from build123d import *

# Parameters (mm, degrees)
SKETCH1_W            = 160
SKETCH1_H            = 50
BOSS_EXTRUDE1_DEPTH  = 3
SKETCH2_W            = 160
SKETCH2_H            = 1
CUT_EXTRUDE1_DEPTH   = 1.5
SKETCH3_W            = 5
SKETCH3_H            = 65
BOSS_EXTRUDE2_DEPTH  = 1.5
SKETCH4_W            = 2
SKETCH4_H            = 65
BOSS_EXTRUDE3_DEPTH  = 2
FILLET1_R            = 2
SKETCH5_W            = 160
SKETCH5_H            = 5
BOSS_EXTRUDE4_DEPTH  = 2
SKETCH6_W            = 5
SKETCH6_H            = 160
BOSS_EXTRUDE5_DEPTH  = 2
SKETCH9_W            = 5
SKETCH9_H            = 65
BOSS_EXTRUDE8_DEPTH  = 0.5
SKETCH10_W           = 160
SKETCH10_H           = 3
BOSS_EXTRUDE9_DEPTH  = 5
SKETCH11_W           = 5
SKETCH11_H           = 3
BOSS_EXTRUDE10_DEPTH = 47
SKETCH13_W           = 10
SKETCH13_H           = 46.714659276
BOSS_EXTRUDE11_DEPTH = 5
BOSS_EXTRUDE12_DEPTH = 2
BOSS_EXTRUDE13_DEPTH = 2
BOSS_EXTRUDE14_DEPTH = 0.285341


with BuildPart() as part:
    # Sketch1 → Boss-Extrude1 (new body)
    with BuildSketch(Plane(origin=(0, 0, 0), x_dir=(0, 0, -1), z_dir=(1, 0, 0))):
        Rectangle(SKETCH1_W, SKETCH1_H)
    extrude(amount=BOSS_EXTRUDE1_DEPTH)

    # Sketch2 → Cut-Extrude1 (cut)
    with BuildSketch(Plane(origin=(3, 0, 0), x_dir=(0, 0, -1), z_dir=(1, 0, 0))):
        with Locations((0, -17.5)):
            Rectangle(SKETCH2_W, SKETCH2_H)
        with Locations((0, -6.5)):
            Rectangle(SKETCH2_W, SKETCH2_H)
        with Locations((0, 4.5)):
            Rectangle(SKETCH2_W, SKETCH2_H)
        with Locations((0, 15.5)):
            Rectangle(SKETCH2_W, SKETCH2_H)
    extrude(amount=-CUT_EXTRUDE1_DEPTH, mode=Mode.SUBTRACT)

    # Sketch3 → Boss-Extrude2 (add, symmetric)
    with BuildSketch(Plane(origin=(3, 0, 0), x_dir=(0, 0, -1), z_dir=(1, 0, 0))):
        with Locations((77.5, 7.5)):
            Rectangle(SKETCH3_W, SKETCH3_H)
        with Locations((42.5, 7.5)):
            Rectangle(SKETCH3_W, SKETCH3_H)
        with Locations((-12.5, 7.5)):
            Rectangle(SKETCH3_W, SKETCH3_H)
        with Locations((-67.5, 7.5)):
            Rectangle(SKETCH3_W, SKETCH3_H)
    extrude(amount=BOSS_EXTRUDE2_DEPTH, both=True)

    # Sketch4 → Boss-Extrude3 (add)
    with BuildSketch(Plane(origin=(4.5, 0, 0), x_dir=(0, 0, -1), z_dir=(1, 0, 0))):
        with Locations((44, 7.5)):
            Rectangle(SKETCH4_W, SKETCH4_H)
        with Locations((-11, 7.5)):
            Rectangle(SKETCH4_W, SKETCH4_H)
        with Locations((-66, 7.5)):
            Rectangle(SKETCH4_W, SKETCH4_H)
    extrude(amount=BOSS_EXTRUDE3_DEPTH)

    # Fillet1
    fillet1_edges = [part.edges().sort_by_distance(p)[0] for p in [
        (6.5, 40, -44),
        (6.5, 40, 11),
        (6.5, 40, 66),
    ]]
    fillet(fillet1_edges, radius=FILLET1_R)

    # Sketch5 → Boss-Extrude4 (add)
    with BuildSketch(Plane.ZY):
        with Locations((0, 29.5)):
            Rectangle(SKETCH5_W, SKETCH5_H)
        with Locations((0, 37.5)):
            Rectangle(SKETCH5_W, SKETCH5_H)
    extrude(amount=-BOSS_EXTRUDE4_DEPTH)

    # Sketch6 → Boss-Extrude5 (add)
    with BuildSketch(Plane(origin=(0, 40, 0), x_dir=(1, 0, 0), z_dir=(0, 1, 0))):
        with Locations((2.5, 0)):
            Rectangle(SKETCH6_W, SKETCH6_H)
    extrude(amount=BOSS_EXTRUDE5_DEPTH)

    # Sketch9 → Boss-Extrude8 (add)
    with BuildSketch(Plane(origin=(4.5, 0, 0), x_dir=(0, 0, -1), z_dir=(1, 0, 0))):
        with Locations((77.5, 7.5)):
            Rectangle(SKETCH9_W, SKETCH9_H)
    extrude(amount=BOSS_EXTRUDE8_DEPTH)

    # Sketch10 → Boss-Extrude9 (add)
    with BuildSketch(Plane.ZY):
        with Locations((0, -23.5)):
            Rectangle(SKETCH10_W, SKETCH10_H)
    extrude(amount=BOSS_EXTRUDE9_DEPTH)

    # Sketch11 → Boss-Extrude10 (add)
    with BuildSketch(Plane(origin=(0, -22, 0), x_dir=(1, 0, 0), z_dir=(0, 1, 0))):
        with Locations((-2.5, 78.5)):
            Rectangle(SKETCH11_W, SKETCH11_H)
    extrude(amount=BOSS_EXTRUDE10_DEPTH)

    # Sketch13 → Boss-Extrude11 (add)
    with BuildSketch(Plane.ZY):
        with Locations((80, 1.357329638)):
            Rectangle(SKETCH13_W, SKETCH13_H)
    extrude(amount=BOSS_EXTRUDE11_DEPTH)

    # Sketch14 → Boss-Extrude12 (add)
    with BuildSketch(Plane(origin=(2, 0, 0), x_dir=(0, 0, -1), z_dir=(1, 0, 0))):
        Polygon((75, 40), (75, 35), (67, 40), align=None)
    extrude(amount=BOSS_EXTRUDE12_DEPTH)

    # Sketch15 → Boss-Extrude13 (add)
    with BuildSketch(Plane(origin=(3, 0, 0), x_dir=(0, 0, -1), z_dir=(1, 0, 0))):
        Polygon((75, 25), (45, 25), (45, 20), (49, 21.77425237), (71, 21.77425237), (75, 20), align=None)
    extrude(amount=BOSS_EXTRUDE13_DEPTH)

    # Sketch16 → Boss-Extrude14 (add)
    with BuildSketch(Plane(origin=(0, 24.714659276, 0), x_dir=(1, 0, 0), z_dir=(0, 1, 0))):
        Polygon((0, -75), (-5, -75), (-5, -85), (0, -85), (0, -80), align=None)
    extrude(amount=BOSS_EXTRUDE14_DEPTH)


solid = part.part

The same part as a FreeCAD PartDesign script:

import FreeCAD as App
import Part
import Sketcher
from FreeCAD import Vector
Q = App.Units.Quantity


def edges_at(feature, points):
    """Names of the edges that pass closest to the given points."""
    edges = feature.Shape.Edges
    near = lambda p: min(range(len(edges)), key=lambda i: edges[i].distToShape(Part.Vertex(*p))[0])
    return sorted({f"Edge{near(p) + 1}" for p in points})

doc = App.newDocument("Part")
body = doc.addObject("PartDesign::Body", "Body")

# Sketch on YZ plane
sketch1 = doc.addObject("Sketcher::SketchObject", "Sketch")
body.addObject(sketch1)
sketch1.AttachmentSupport = (doc.YZ_Plane, [""])
sketch1.MapMode = "FlatFace"
sketch1.addGeometry(Part.LineSegment(Vector(25, 80, 0), Vector(-25, 80, 0)), False)
sketch1.addGeometry(Part.LineSegment(Vector(-25, 80, 0), Vector(-25, -80, 0)), False)
sketch1.addGeometry(Part.LineSegment(Vector(-25, -80, 0), Vector(25, -80, 0)), False)
sketch1.addGeometry(Part.LineSegment(Vector(25, -80, 0), Vector(25, 80, 0)), False)
sketch1.addConstraint(Sketcher.Constraint("Coincident", 0, 2, 1, 1))
sketch1.addConstraint(Sketcher.Constraint("Coincident", 1, 2, 2, 1))
sketch1.addConstraint(Sketcher.Constraint("Coincident", 2, 2, 3, 1))
sketch1.addConstraint(Sketcher.Constraint("Coincident", 3, 2, 0, 1))
sketch1.addConstraint(Sketcher.Constraint("Horizontal", 0))
sketch1.addConstraint(Sketcher.Constraint("Vertical", 1))
sketch1.addConstraint(Sketcher.Constraint("Horizontal", 2))
sketch1.addConstraint(Sketcher.Constraint("Vertical", 3))
sketch1.addConstraint(Sketcher.Constraint("Symmetric", 0, 2, 2, 2, -1, 1))
sketch1.addConstraint(Sketcher.Constraint("DistanceX", 0, 2, 0, 1, Q("50 mm")))
sketch1.addConstraint(Sketcher.Constraint("DistanceY", 1, 2, 1, 1, Q("160 mm")))
pad1 = doc.addObject("PartDesign::Pad", "Pad")
body.addObject(pad1)
pad1.Profile = sketch1
pad1.Length = 3

# Sketch on YZ plane
sketch2 = doc.addObject("Sketcher::SketchObject", "Sketch001")
body.addObject(sketch2)
sketch2.AttachmentSupport = (doc.YZ_Plane, [""])
sketch2.MapMode = "FlatFace"
sketch2.AttachmentOffset = App.Placement(Vector(0, 0, 3), App.Rotation())
sketch2.addGeometry(Part.LineSegment(Vector(-17, 80, 0), Vector(-18, 80, 0)), False)
sketch2.addGeometry(Part.LineSegment(Vector(-18, 80, 0), Vector(-18, -80, 0)), False)
sketch2.addGeometry(Part.LineSegment(Vector(-18, -80, 0), Vector(-17, -80, 0)), False)
sketch2.addGeometry(Part.LineSegment(Vector(-17, -80, 0), Vector(-17, 80, 0)), False)
sketch2.addGeometry(Part.LineSegment(Vector(-6, 80, 0), Vector(-7, 80, 0)), False)
sketch2.addGeometry(Part.LineSegment(Vector(-7, 80, 0), Vector(-7, -80, 0)), False)
sketch2.addGeometry(Part.LineSegment(Vector(-7, -80, 0), Vector(-6, -80, 0)), False)
sketch2.addGeometry(Part.LineSegment(Vector(-6, -80, 0), Vector(-6, 80, 0)), False)
sketch2.addGeometry(Part.LineSegment(Vector(5, 80, 0), Vector(4, 80, 0)), False)
sketch2.addGeometry(Part.LineSegment(Vector(4, 80, 0), Vector(4, -80, 0)), False)
sketch2.addGeometry(Part.LineSegment(Vector(4, -80, 0), Vector(5, -80, 0)), False)
sketch2.addGeometry(Part.LineSegment(Vector(5, -80, 0), Vector(5, 80, 0)), False)
sketch2.addGeometry(Part.LineSegment(Vector(16, 80, 0), Vector(15, 80, 0)), False)
sketch2.addGeometry(Part.LineSegment(Vector(15, 80, 0), Vector(15, -80, 0)), False)
sketch2.addGeometry(Part.LineSegment(Vector(15, -80, 0), Vector(16, -80, 0)), False)
sketch2.addGeometry(Part.LineSegment(Vector(16, -80, 0), Vector(16, 80, 0)), False)
sketch2.addConstraint(Sketcher.Constraint("Coincident", 0, 2, 1, 1))
sketch2.addConstraint(Sketcher.Constraint("Coincident", 1, 2, 2, 1))
sketch2.addConstraint(Sketcher.Constraint("Coincident", 2, 2, 3, 1))
sketch2.addConstraint(Sketcher.Constraint("Coincident", 3, 2, 0, 1))
sketch2.addConstraint(Sketcher.Constraint("Coincident", 4, 2, 5, 1))
sketch2.addConstraint(Sketcher.Constraint("Coincident", 5, 2, 6, 1))
sketch2.addConstraint(Sketcher.Constraint("Coincident", 6, 2, 7, 1))
sketch2.addConstraint(Sketcher.Constraint("Coincident", 7, 2, 4, 1))
sketch2.addConstraint(Sketcher.Constraint("Coincident", 8, 2, 9, 1))
sketch2.addConstraint(Sketcher.Constraint("Coincident", 9, 2, 10, 1))
sketch2.addConstraint(Sketcher.Constraint("Coincident", 10, 2, 11, 1))
sketch2.addConstraint(Sketcher.Constraint("Coincident", 11, 2, 8, 1))
sketch2.addConstraint(Sketcher.Constraint("Coincident", 12, 2, 13, 1))
sketch2.addConstraint(Sketcher.Constraint("Coincident", 13, 2, 14, 1))
sketch2.addConstraint(Sketcher.Constraint("Coincident", 14, 2, 15, 1))
sketch2.addConstraint(Sketcher.Constraint("Coincident", 15, 2, 12, 1))
sketch2.addConstraint(Sketcher.Constraint("Horizontal", 0))
sketch2.addConstraint(Sketcher.Constraint("Vertical", 1))
sketch2.addConstraint(Sketcher.Constraint("Horizontal", 2))
sketch2.addConstraint(Sketcher.Constraint("Vertical", 3))
sketch2.addConstraint(Sketcher.Constraint("Horizontal", 4))
sketch2.addConstraint(Sketcher.Constraint("Vertical", 5))
sketch2.addConstraint(Sketcher.Constraint("Horizontal", 6))
sketch2.addConstraint(Sketcher.Constraint("Vertical", 7))
sketch2.addConstraint(Sketcher.Constraint("Horizontal", 8))
sketch2.addConstraint(Sketcher.Constraint("Vertical", 9))
sketch2.addConstraint(Sketcher.Constraint("Horizontal", 10))
sketch2.addConstraint(Sketcher.Constraint("Vertical", 11))
sketch2.addConstraint(Sketcher.Constraint("Horizontal", 12))
sketch2.addConstraint(Sketcher.Constraint("Vertical", 13))
sketch2.addConstraint(Sketcher.Constraint("Horizontal", 14))
sketch2.addConstraint(Sketcher.Constraint("Vertical", 15))
sketch2.addConstraint(Sketcher.Constraint("Horizontal", 3, 2, 4, 2))
sketch2.addConstraint(Sketcher.Constraint("Horizontal", 2, 2, 5, 2))
sketch2.addConstraint(Sketcher.Constraint("Horizontal", 7, 2, 8, 2))
sketch2.addConstraint(Sketcher.Constraint("Horizontal", 6, 2, 9, 2))
sketch2.addConstraint(Sketcher.Constraint("Horizontal", 11, 2, 12, 2))
sketch2.addConstraint(Sketcher.Constraint("Horizontal", 10, 2, 13, 2))
sketch2.addConstraint(Sketcher.Constraint("Equal", 2, 4))
sketch2.addConstraint(Sketcher.Constraint("Equal", 6, 8))
sketch2.addConstraint(Sketcher.Constraint("Equal", 10, 12))
sketch2.addConstraint(Sketcher.Constraint("DistanceX", 0, 2, 0, 1, Q("1 mm")))
sketch2.addConstraint(Sketcher.Constraint("DistanceY", 1, 2, 1, 1, Q("160 mm")))
sketch2.addConstraint(Sketcher.Constraint("DistanceX", 0, 2, -1, 1, Q("18 mm")))
sketch2.addConstraint(Sketcher.Constraint("DistanceY", -1, 1, 0, 2, Q("80 mm")))
sketch2.addConstraint(Sketcher.Constraint("DistanceX", 4, 2, -1, 1, Q("7 mm")))
sketch2.addConstraint(Sketcher.Constraint("DistanceX", -1, 1, 8, 2, Q("4 mm")))
sketch2.addConstraint(Sketcher.Constraint("DistanceX", -1, 1, 12, 2, Q("15 mm")))
pocket1 = doc.addObject("PartDesign::Pocket", "Pocket")
body.addObject(pocket1)
pocket1.Profile = sketch2
pocket1.Length = 1.5

# Sketch on YZ plane
sketch3 = doc.addObject("Sketcher::SketchObject", "Sketch002")
body.addObject(sketch3)
sketch3.AttachmentSupport = (doc.YZ_Plane, [""])
sketch3.MapMode = "FlatFace"
sketch3.AttachmentOffset = App.Placement(Vector(0, 0, 3), App.Rotation())
sketch3.addGeometry(Part.LineSegment(Vector(40, -75, 0), Vector(-25, -75, 0)), False)
sketch3.addGeometry(Part.LineSegment(Vector(-25, -75, 0), Vector(-25, -80, 0)), False)
sketch3.addGeometry(Part.LineSegment(Vector(-25, -80, 0), Vector(40, -80, 0)), False)
sketch3.addGeometry(Part.LineSegment(Vector(40, -80, 0), Vector(40, -75, 0)), False)
sketch3.addGeometry(Part.LineSegment(Vector(40, -40, 0), Vector(-25, -40, 0)), False)
sketch3.addGeometry(Part.LineSegment(Vector(-25, -40, 0), Vector(-25, -45, 0)), False)
sketch3.addGeometry(Part.LineSegment(Vector(-25, -45, 0), Vector(40, -45, 0)), False)
sketch3.addGeometry(Part.LineSegment(Vector(40, -45, 0), Vector(40, -40, 0)), False)
sketch3.addGeometry(Part.LineSegment(Vector(40, 15, 0), Vector(-25, 15, 0)), False)
sketch3.addGeometry(Part.LineSegment(Vector(-25, 15, 0), Vector(-25, 10, 0)), False)
sketch3.addGeometry(Part.LineSegment(Vector(-25, 10, 0), Vector(40, 10, 0)), False)
sketch3.addGeometry(Part.LineSegment(Vector(40, 10, 0), Vector(40, 15, 0)), False)
sketch3.addGeometry(Part.LineSegment(Vector(40, 70, 0), Vector(-25, 70, 0)), False)
sketch3.addGeometry(Part.LineSegment(Vector(-25, 70, 0), Vector(-25, 65, 0)), False)
sketch3.addGeometry(Part.LineSegment(Vector(-25, 65, 0), Vector(40, 65, 0)), False)
sketch3.addGeometry(Part.LineSegment(Vector(40, 65, 0), Vector(40, 70, 0)), False)
sketch3.addConstraint(Sketcher.Constraint("Coincident", 0, 2, 1, 1))
sketch3.addConstraint(Sketcher.Constraint("Coincident", 1, 2, 2, 1))
sketch3.addConstraint(Sketcher.Constraint("Coincident", 2, 2, 3, 1))
sketch3.addConstraint(Sketcher.Constraint("Coincident", 3, 2, 0, 1))
sketch3.addConstraint(Sketcher.Constraint("Coincident", 4, 2, 5, 1))
sketch3.addConstraint(Sketcher.Constraint("Coincident", 5, 2, 6, 1))
sketch3.addConstraint(Sketcher.Constraint("Coincident", 6, 2, 7, 1))
sketch3.addConstraint(Sketcher.Constraint("Coincident", 7, 2, 4, 1))
sketch3.addConstraint(Sketcher.Constraint("Coincident", 8, 2, 9, 1))
sketch3.addConstraint(Sketcher.Constraint("Coincident", 9, 2, 10, 1))
sketch3.addConstraint(Sketcher.Constraint("Coincident", 10, 2, 11, 1))
sketch3.addConstraint(Sketcher.Constraint("Coincident", 11, 2, 8, 1))
sketch3.addConstraint(Sketcher.Constraint("Coincident", 12, 2, 13, 1))
sketch3.addConstraint(Sketcher.Constraint("Coincident", 13, 2, 14, 1))
sketch3.addConstraint(Sketcher.Constraint("Coincident", 14, 2, 15, 1))
sketch3.addConstraint(Sketcher.Constraint("Coincident", 15, 2, 12, 1))
sketch3.addConstraint(Sketcher.Constraint("Horizontal", 0))
sketch3.addConstraint(Sketcher.Constraint("Vertical", 1))
sketch3.addConstraint(Sketcher.Constraint("Horizontal", 2))
sketch3.addConstraint(Sketcher.Constraint("Vertical", 3))
sketch3.addConstraint(Sketcher.Constraint("Horizontal", 4))
sketch3.addConstraint(Sketcher.Constraint("Vertical", 5))
sketch3.addConstraint(Sketcher.Constraint("Horizontal", 6))
sketch3.addConstraint(Sketcher.Constraint("Vertical", 7))
sketch3.addConstraint(Sketcher.Constraint("Horizontal", 8))
sketch3.addConstraint(Sketcher.Constraint("Vertical", 9))
sketch3.addConstraint(Sketcher.Constraint("Horizontal", 10))
sketch3.addConstraint(Sketcher.Constraint("Vertical", 11))
sketch3.addConstraint(Sketcher.Constraint("Horizontal", 12))
sketch3.addConstraint(Sketcher.Constraint("Vertical", 13))
sketch3.addConstraint(Sketcher.Constraint("Horizontal", 14))
sketch3.addConstraint(Sketcher.Constraint("Vertical", 15))
sketch3.addConstraint(Sketcher.Constraint("Vertical", 1, 2, 4, 2))
sketch3.addConstraint(Sketcher.Constraint("Vertical", 3, 2, 6, 2))
sketch3.addConstraint(Sketcher.Constraint("Vertical", 5, 2, 8, 2))
sketch3.addConstraint(Sketcher.Constraint("Vertical", 7, 2, 10, 2))
sketch3.addConstraint(Sketcher.Constraint("Vertical", 9, 2, 12, 2))
sketch3.addConstraint(Sketcher.Constraint("Vertical", 11, 2, 14, 2))
sketch3.addConstraint(Sketcher.Constraint("Equal", 3, 5))
sketch3.addConstraint(Sketcher.Constraint("Equal", 7, 9))
sketch3.addConstraint(Sketcher.Constraint("Equal", 11, 13))
sketch3.addConstraint(Sketcher.Constraint("DistanceX", 0, 2, 0, 1, Q("65 mm")))
sketch3.addConstraint(Sketcher.Constraint("DistanceY", 1, 2, 1, 1, Q("5 mm")))
sketch3.addConstraint(Sketcher.Constraint("DistanceX", 0, 2, -1, 1, Q("25 mm")))
sketch3.addConstraint(Sketcher.Constraint("DistanceY", 0, 2, -1, 1, Q("75 mm")))
sketch3.addConstraint(Sketcher.Constraint("DistanceY", 4, 2, -1, 1, Q("40 mm")))
sketch3.addConstraint(Sketcher.Constraint("DistanceY", -1, 1, 8, 2, Q("15 mm")))
sketch3.addConstraint(Sketcher.Constraint("DistanceY", -1, 1, 12, 2, Q("70 mm")))
pad2 = doc.addObject("PartDesign::Pad", "Pad001")
body.addObject(pad2)
pad2.Profile = sketch3
pad2.Length = 3
pad2.Midplane = True

# Sketch on YZ plane
sketch4 = doc.addObject("Sketcher::SketchObject", "Sketch003")
body.addObject(sketch4)
sketch4.AttachmentSupport = (doc.YZ_Plane, [""])
sketch4.MapMode = "FlatFace"
sketch4.AttachmentOffset = App.Placement(Vector(0, 0, 4.5), App.Rotation())
sketch4.addGeometry(Part.LineSegment(Vector(40, -43, 0), Vector(-25, -43, 0)), False)
sketch4.addGeometry(Part.LineSegment(Vector(-25, -43, 0), Vector(-25, -45, 0)), False)
sketch4.addGeometry(Part.LineSegment(Vector(-25, -45, 0), Vector(40, -45, 0)), False)
sketch4.addGeometry(Part.LineSegment(Vector(40, -45, 0), Vector(40, -43, 0)), False)
sketch4.addGeometry(Part.LineSegment(Vector(40, 12, 0), Vector(-25, 12, 0)), False)
sketch4.addGeometry(Part.LineSegment(Vector(-25, 12, 0), Vector(-25, 10, 0)), False)
sketch4.addGeometry(Part.LineSegment(Vector(-25, 10, 0), Vector(40, 10, 0)), False)
sketch4.addGeometry(Part.LineSegment(Vector(40, 10, 0), Vector(40, 12, 0)), False)
sketch4.addGeometry(Part.LineSegment(Vector(40, 67, 0), Vector(-25, 67, 0)), False)
sketch4.addGeometry(Part.LineSegment(Vector(-25, 67, 0), Vector(-25, 65, 0)), False)
sketch4.addGeometry(Part.LineSegment(Vector(-25, 65, 0), Vector(40, 65, 0)), False)
sketch4.addGeometry(Part.LineSegment(Vector(40, 65, 0), Vector(40, 67, 0)), False)
sketch4.addConstraint(Sketcher.Constraint("Coincident", 0, 2, 1, 1))
sketch4.addConstraint(Sketcher.Constraint("Coincident", 1, 2, 2, 1))
sketch4.addConstraint(Sketcher.Constraint("Coincident", 2, 2, 3, 1))
sketch4.addConstraint(Sketcher.Constraint("Coincident", 3, 2, 0, 1))
sketch4.addConstraint(Sketcher.Constraint("Coincident", 4, 2, 5, 1))
sketch4.addConstraint(Sketcher.Constraint("Coincident", 5, 2, 6, 1))
sketch4.addConstraint(Sketcher.Constraint("Coincident", 6, 2, 7, 1))
sketch4.addConstraint(Sketcher.Constraint("Coincident", 7, 2, 4, 1))
sketch4.addConstraint(Sketcher.Constraint("Coincident", 8, 2, 9, 1))
sketch4.addConstraint(Sketcher.Constraint("Coincident", 9, 2, 10, 1))
sketch4.addConstraint(Sketcher.Constraint("Coincident", 10, 2, 11, 1))
sketch4.addConstraint(Sketcher.Constraint("Coincident", 11, 2, 8, 1))
sketch4.addConstraint(Sketcher.Constraint("Horizontal", 0))
sketch4.addConstraint(Sketcher.Constraint("Vertical", 1))
sketch4.addConstraint(Sketcher.Constraint("Horizontal", 2))
sketch4.addConstraint(Sketcher.Constraint("Vertical", 3))
sketch4.addConstraint(Sketcher.Constraint("Horizontal", 4))
sketch4.addConstraint(Sketcher.Constraint("Vertical", 5))
sketch4.addConstraint(Sketcher.Constraint("Horizontal", 6))
sketch4.addConstraint(Sketcher.Constraint("Vertical", 7))
sketch4.addConstraint(Sketcher.Constraint("Horizontal", 8))
sketch4.addConstraint(Sketcher.Constraint("Vertical", 9))
sketch4.addConstraint(Sketcher.Constraint("Horizontal", 10))
sketch4.addConstraint(Sketcher.Constraint("Vertical", 11))
sketch4.addConstraint(Sketcher.Constraint("Vertical", 1, 2, 4, 2))
sketch4.addConstraint(Sketcher.Constraint("Vertical", 3, 2, 6, 2))
sketch4.addConstraint(Sketcher.Constraint("Vertical", 5, 2, 8, 2))
sketch4.addConstraint(Sketcher.Constraint("Vertical", 7, 2, 10, 2))
sketch4.addConstraint(Sketcher.Constraint("Equal", 3, 5))
sketch4.addConstraint(Sketcher.Constraint("Equal", 7, 9))
sketch4.addConstraint(Sketcher.Constraint("DistanceX", 0, 2, 0, 1, Q("65 mm")))
sketch4.addConstraint(Sketcher.Constraint("DistanceY", 1, 2, 1, 1, Q("2 mm")))
sketch4.addConstraint(Sketcher.Constraint("DistanceX", 0, 2, -1, 1, Q("25 mm")))
sketch4.addConstraint(Sketcher.Constraint("DistanceY", 0, 2, -1, 1, Q("43 mm")))
sketch4.addConstraint(Sketcher.Constraint("DistanceY", -1, 1, 4, 2, Q("12 mm")))
sketch4.addConstraint(Sketcher.Constraint("DistanceY", -1, 1, 8, 2, Q("67 mm")))
pad3 = doc.addObject("PartDesign::Pad", "Pad002")
body.addObject(pad3)
pad3.Profile = sketch4
pad3.Length = 2
doc.recompute()

fillet = doc.addObject("PartDesign::Fillet", "Fillet")
body.addObject(fillet)
fillet.Base = (pad3, edges_at(pad3, [(6.5, 40, -44), (6.5, 40, 11), (6.5, 40, 66)]))
fillet.Radius = 2

# Sketch on YZ plane
sketch5 = doc.addObject("Sketcher::SketchObject", "Sketch004")
body.addObject(sketch5)
sketch5.AttachmentSupport = (doc.YZ_Plane, [""])
sketch5.MapMode = "FlatFace"
sketch5.addGeometry(Part.LineSegment(Vector(32, -80, 0), Vector(27, -80, 0)), False)
sketch5.addGeometry(Part.LineSegment(Vector(27, -80, 0), Vector(27, 80, 0)), False)
sketch5.addGeometry(Part.LineSegment(Vector(27, 80, 0), Vector(32, 80, 0)), False)
sketch5.addGeometry(Part.LineSegment(Vector(32, 80, 0), Vector(32, -80, 0)), False)
sketch5.addGeometry(Part.LineSegment(Vector(40, -80, 0), Vector(35, -80, 0)), False)
sketch5.addGeometry(Part.LineSegment(Vector(35, -80, 0), Vector(35, 80, 0)), False)
sketch5.addGeometry(Part.LineSegment(Vector(35, 80, 0), Vector(40, 80, 0)), False)
sketch5.addGeometry(Part.LineSegment(Vector(40, 80, 0), Vector(40, -80, 0)), False)
sketch5.addConstraint(Sketcher.Constraint("Coincident", 0, 2, 1, 1))
sketch5.addConstraint(Sketcher.Constraint("Coincident", 1, 2, 2, 1))
sketch5.addConstraint(Sketcher.Constraint("Coincident", 2, 2, 3, 1))
sketch5.addConstraint(Sketcher.Constraint("Coincident", 3, 2, 0, 1))
sketch5.addConstraint(Sketcher.Constraint("Coincident", 4, 2, 5, 1))
sketch5.addConstraint(Sketcher.Constraint("Coincident", 5, 2, 6, 1))
sketch5.addConstraint(Sketcher.Constraint("Coincident", 6, 2, 7, 1))
sketch5.addConstraint(Sketcher.Constraint("Coincident", 7, 2, 4, 1))
sketch5.addConstraint(Sketcher.Constraint("Horizontal", 0))
sketch5.addConstraint(Sketcher.Constraint("Vertical", 1))
sketch5.addConstraint(Sketcher.Constraint("Horizontal", 2))
sketch5.addConstraint(Sketcher.Constraint("Vertical", 3))
sketch5.addConstraint(Sketcher.Constraint("Horizontal", 4))
sketch5.addConstraint(Sketcher.Constraint("Vertical", 5))
sketch5.addConstraint(Sketcher.Constraint("Horizontal", 6))
sketch5.addConstraint(Sketcher.Constraint("Vertical", 7))
sketch5.addConstraint(Sketcher.Constraint("Horizontal", 3, 2, 4, 2))
sketch5.addConstraint(Sketcher.Constraint("Horizontal", 2, 2, 5, 2))
sketch5.addConstraint(Sketcher.Constraint("Equal", 2, 4))
sketch5.addConstraint(Sketcher.Constraint("DistanceX", 0, 2, 0, 1, Q("5 mm")))
sketch5.addConstraint(Sketcher.Constraint("DistanceY", 1, 1, 1, 2, Q("160 mm")))
sketch5.addConstraint(Sketcher.Constraint("DistanceX", -1, 1, 0, 2, Q("27 mm")))
sketch5.addConstraint(Sketcher.Constraint("DistanceY", 0, 2, -1, 1, Q("80 mm")))
sketch5.addConstraint(Sketcher.Constraint("DistanceX", -1, 1, 4, 2, Q("35 mm")))
pad4 = doc.addObject("PartDesign::Pad", "Pad003")
body.addObject(pad4)
pad4.Profile = sketch5
pad4.Length = 2

# Sketch on XZ plane
sketch6 = doc.addObject("Sketcher::SketchObject", "Sketch005")
body.addObject(sketch6)
sketch6.AttachmentSupport = (doc.XZ_Plane, [""])
sketch6.MapMode = "FlatFace"
sketch6.AttachmentOffset = App.Placement(Vector(0, 0, -40), App.Rotation())
sketch6.addGeometry(Part.LineSegment(Vector(0, -80, 0), Vector(0, 80, 0)), False)
sketch6.addGeometry(Part.LineSegment(Vector(0, 80, 0), Vector(5, 80, 0)), False)
sketch6.addGeometry(Part.LineSegment(Vector(5, 80, 0), Vector(5, -80, 0)), False)
sketch6.addGeometry(Part.LineSegment(Vector(5, -80, 0), Vector(0, -80, 0)), False)
sketch6.addConstraint(Sketcher.Constraint("Coincident", 0, 2, 1, 1))
sketch6.addConstraint(Sketcher.Constraint("Coincident", 1, 2, 2, 1))
sketch6.addConstraint(Sketcher.Constraint("Coincident", 2, 2, 3, 1))
sketch6.addConstraint(Sketcher.Constraint("Coincident", 3, 2, 0, 1))
sketch6.addConstraint(Sketcher.Constraint("Vertical", 0))
sketch6.addConstraint(Sketcher.Constraint("Horizontal", 1))
sketch6.addConstraint(Sketcher.Constraint("Vertical", 2))
sketch6.addConstraint(Sketcher.Constraint("Horizontal", 3))
sketch6.addConstraint(Sketcher.Constraint("Symmetric", 0, 2, 3, 2, -1, 1))
sketch6.addConstraint(Sketcher.Constraint("DistanceX", 1, 1, 1, 2, Q("5 mm")))
sketch6.addConstraint(Sketcher.Constraint("DistanceY", 0, 1, 0, 2, Q("160 mm")))
pad5 = doc.addObject("PartDesign::Pad", "Pad004")
body.addObject(pad5)
pad5.Profile = sketch6
pad5.Length = 2
pad5.Reversed = True

# Sketch on YZ plane
sketch7 = doc.addObject("Sketcher::SketchObject", "Sketch006")
body.addObject(sketch7)
sketch7.AttachmentSupport = (doc.YZ_Plane, [""])
sketch7.MapMode = "FlatFace"
sketch7.AttachmentOffset = App.Placement(Vector(0, 0, 4.5), App.Rotation())
sketch7.addGeometry(Part.LineSegment(Vector(40, -75, 0), Vector(-25, -75, 0)), False)
sketch7.addGeometry(Part.LineSegment(Vector(-25, -75, 0), Vector(-25, -80, 0)), False)
sketch7.addGeometry(Part.LineSegment(Vector(-25, -80, 0), Vector(40, -80, 0)), False)
sketch7.addGeometry(Part.LineSegment(Vector(40, -80, 0), Vector(40, -75, 0)), False)
sketch7.addConstraint(Sketcher.Constraint("Coincident", 0, 2, 1, 1))
sketch7.addConstraint(Sketcher.Constraint("Coincident", 1, 2, 2, 1))
sketch7.addConstraint(Sketcher.Constraint("Coincident", 2, 2, 3, 1))
sketch7.addConstraint(Sketcher.Constraint("Coincident", 3, 2, 0, 1))
sketch7.addConstraint(Sketcher.Constraint("Horizontal", 0))
sketch7.addConstraint(Sketcher.Constraint("Vertical", 1))
sketch7.addConstraint(Sketcher.Constraint("Horizontal", 2))
sketch7.addConstraint(Sketcher.Constraint("Vertical", 3))
sketch7.addConstraint(Sketcher.Constraint("DistanceX", 0, 2, 0, 1, Q("65 mm")))
sketch7.addConstraint(Sketcher.Constraint("DistanceY", 1, 2, 1, 1, Q("5 mm")))
sketch7.addConstraint(Sketcher.Constraint("DistanceX", 0, 2, -1, 1, Q("25 mm")))
sketch7.addConstraint(Sketcher.Constraint("DistanceY", 0, 2, -1, 1, Q("75 mm")))
pad6 = doc.addObject("PartDesign::Pad", "Pad005")
body.addObject(pad6)
pad6.Profile = sketch7
pad6.Length = 0.5

# Sketch on YZ plane
sketch8 = doc.addObject("Sketcher::SketchObject", "Sketch007")
body.addObject(sketch8)
sketch8.AttachmentSupport = (doc.YZ_Plane, [""])
sketch8.MapMode = "FlatFace"
sketch8.addGeometry(Part.LineSegment(Vector(-22, -80, 0), Vector(-25, -80, 0)), False)
sketch8.addGeometry(Part.LineSegment(Vector(-25, -80, 0), Vector(-25, 80, 0)), False)
sketch8.addGeometry(Part.LineSegment(Vector(-25, 80, 0), Vector(-22, 80, 0)), False)
sketch8.addGeometry(Part.LineSegment(Vector(-22, 80, 0), Vector(-22, -80, 0)), False)
sketch8.addConstraint(Sketcher.Constraint("Coincident", 0, 2, 1, 1))
sketch8.addConstraint(Sketcher.Constraint("Coincident", 1, 2, 2, 1))
sketch8.addConstraint(Sketcher.Constraint("Coincident", 2, 2, 3, 1))
sketch8.addConstraint(Sketcher.Constraint("Coincident", 3, 2, 0, 1))
sketch8.addConstraint(Sketcher.Constraint("Horizontal", 0))
sketch8.addConstraint(Sketcher.Constraint("Vertical", 1))
sketch8.addConstraint(Sketcher.Constraint("Horizontal", 2))
sketch8.addConstraint(Sketcher.Constraint("Vertical", 3))
sketch8.addConstraint(Sketcher.Constraint("DistanceX", 0, 2, 0, 1, Q("3 mm")))
sketch8.addConstraint(Sketcher.Constraint("DistanceY", 1, 1, 1, 2, Q("160 mm")))
sketch8.addConstraint(Sketcher.Constraint("DistanceX", 0, 2, -1, 1, Q("25 mm")))
sketch8.addConstraint(Sketcher.Constraint("DistanceY", 0, 2, -1, 1, Q("80 mm")))
pad7 = doc.addObject("PartDesign::Pad", "Pad006")
body.addObject(pad7)
pad7.Profile = sketch8
pad7.Length = 5
pad7.Reversed = True

# Sketch on XZ plane
sketch9 = doc.addObject("Sketcher::SketchObject", "Sketch008")
body.addObject(sketch9)
sketch9.AttachmentSupport = (doc.XZ_Plane, [""])
sketch9.MapMode = "FlatFace"
sketch9.AttachmentOffset = App.Placement(Vector(0, 0, 22), App.Rotation())
sketch9.addGeometry(Part.LineSegment(Vector(-5, -80, 0), Vector(-5, -77, 0)), False)
sketch9.addGeometry(Part.LineSegment(Vector(-5, -77, 0), Vector(0, -77, 0)), False)
sketch9.addGeometry(Part.LineSegment(Vector(0, -77, 0), Vector(0, -80, 0)), False)
sketch9.addGeometry(Part.LineSegment(Vector(0, -80, 0), Vector(-5, -80, 0)), False)
sketch9.addConstraint(Sketcher.Constraint("Coincident", 0, 2, 1, 1))
sketch9.addConstraint(Sketcher.Constraint("Coincident", 1, 2, 2, 1))
sketch9.addConstraint(Sketcher.Constraint("Coincident", 2, 2, 3, 1))
sketch9.addConstraint(Sketcher.Constraint("Coincident", 3, 2, 0, 1))
sketch9.addConstraint(Sketcher.Constraint("Vertical", 0))
sketch9.addConstraint(Sketcher.Constraint("Horizontal", 1))
sketch9.addConstraint(Sketcher.Constraint("Vertical", 2))
sketch9.addConstraint(Sketcher.Constraint("Horizontal", 3))
sketch9.addConstraint(Sketcher.Constraint("PointOnObject", 1, 2, -2))
sketch9.addConstraint(Sketcher.Constraint("DistanceX", 1, 1, 1, 2, Q("5 mm")))
sketch9.addConstraint(Sketcher.Constraint("DistanceY", 0, 1, 0, 2, Q("3 mm")))
sketch9.addConstraint(Sketcher.Constraint("DistanceY", 0, 2, -1, 1, Q("77 mm")))
pad8 = doc.addObject("PartDesign::Pad", "Pad007")
body.addObject(pad8)
pad8.Profile = sketch9
pad8.Length = 47
pad8.Reversed = True

# Sketch on YZ plane
sketch10 = doc.addObject("Sketcher::SketchObject", "Sketch009")
body.addObject(sketch10)
sketch10.AttachmentSupport = (doc.YZ_Plane, [""])
sketch10.MapMode = "FlatFace"
sketch10.addGeometry(Part.LineSegment(Vector(25, 75, 0), Vector(-22, 75, 0)), False)
sketch10.addGeometry(Part.LineSegment(Vector(-22, 75, 0), Vector(-22, 85, 0)), False)
sketch10.addGeometry(Part.LineSegment(Vector(-22, 85, 0), Vector(25, 85, 0)), False)
sketch10.addGeometry(Part.LineSegment(Vector(25, 85, 0), Vector(25, 75, 0)), False)
sketch10.addConstraint(Sketcher.Constraint("Coincident", 0, 2, 1, 1))
sketch10.addConstraint(Sketcher.Constraint("Coincident", 1, 2, 2, 1))
sketch10.addConstraint(Sketcher.Constraint("Coincident", 2, 2, 3, 1))
sketch10.addConstraint(Sketcher.Constraint("Coincident", 3, 2, 0, 1))
sketch10.addConstraint(Sketcher.Constraint("Horizontal", 0))
sketch10.addConstraint(Sketcher.Constraint("Vertical", 1))
sketch10.addConstraint(Sketcher.Constraint("Horizontal", 2))
sketch10.addConstraint(Sketcher.Constraint("Vertical", 3))
sketch10.addConstraint(Sketcher.Constraint("DistanceY", 1, 1, 1, 2, Q("10 mm")))
sketch10.addConstraint(Sketcher.Constraint("DistanceX", 0, 2, -1, 1, Q("22 mm")))
sketch10.addConstraint(Sketcher.Constraint("DistanceY", -1, 1, 0, 2, Q("75 mm")))
sketch10.addConstraint(Sketcher.Constraint("DistanceX", 0, 2, 0, 1, Q("46.714659 mm")))
pad9 = doc.addObject("PartDesign::Pad", "Pad008")
body.addObject(pad9)
pad9.Profile = sketch10
pad9.Length = 5
pad9.Reversed = True

# Sketch on YZ plane
sketch11 = doc.addObject("Sketcher::SketchObject", "Sketch010")
body.addObject(sketch11)
sketch11.AttachmentSupport = (doc.YZ_Plane, [""])
sketch11.MapMode = "FlatFace"
sketch11.AttachmentOffset = App.Placement(Vector(0, 0, 2), App.Rotation())
sketch11.addGeometry(Part.LineSegment(Vector(35, -75, 0), Vector(40, -75, 0)), False)
sketch11.addGeometry(Part.LineSegment(Vector(40, -75, 0), Vector(40, -67, 0)), False)
sketch11.addGeometry(Part.LineSegment(Vector(40, -67, 0), Vector(35, -75, 0)), False)
sketch11.addConstraint(Sketcher.Constraint("Coincident", 0, 2, 1, 1))
sketch11.addConstraint(Sketcher.Constraint("Coincident", 1, 2, 2, 1))
sketch11.addConstraint(Sketcher.Constraint("Coincident", 2, 2, 0, 1))
sketch11.addConstraint(Sketcher.Constraint("Horizontal", 0))
sketch11.addConstraint(Sketcher.Constraint("Vertical", 1))
sketch11.addConstraint(Sketcher.Constraint("DistanceX", 0, 1, 0, 2, Q("5 mm")))
sketch11.addConstraint(Sketcher.Constraint("DistanceY", 1, 1, 1, 2, Q("8 mm")))
sketch11.addConstraint(Sketcher.Constraint("DistanceX", -1, 1, 0, 2, Q("40 mm")))
sketch11.addConstraint(Sketcher.Constraint("DistanceY", 0, 2, -1, 1, Q("75 mm")))
pad10 = doc.addObject("PartDesign::Pad", "Pad009")
body.addObject(pad10)
pad10.Profile = sketch11
pad10.Length = 2

# Sketch on YZ plane
sketch12 = doc.addObject("Sketcher::SketchObject", "Sketch011")
body.addObject(sketch12)
sketch12.AttachmentSupport = (doc.YZ_Plane, [""])
sketch12.MapMode = "FlatFace"
sketch12.AttachmentOffset = App.Placement(Vector(0, 0, 3), App.Rotation())
sketch12.addGeometry(Part.LineSegment(Vector(25, -75, 0), Vector(25, -45, 0)), False)
sketch12.addGeometry(Part.LineSegment(Vector(25, -45, 0), Vector(20, -45, 0)), False)
sketch12.addGeometry(Part.LineSegment(Vector(20, -45, 0), Vector(21.8, -49, 0)), False)
sketch12.addGeometry(Part.LineSegment(Vector(21.8, -49, 0), Vector(21.8, -71, 0)), False)
sketch12.addGeometry(Part.LineSegment(Vector(21.8, -71, 0), Vector(20, -75, 0)), False)
sketch12.addGeometry(Part.LineSegment(Vector(20, -75, 0), Vector(25, -75, 0)), False)
sketch12.addConstraint(Sketcher.Constraint("Coincident", 0, 2, 1, 1))
sketch12.addConstraint(Sketcher.Constraint("Coincident", 1, 2, 2, 1))
sketch12.addConstraint(Sketcher.Constraint("Coincident", 2, 2, 3, 1))
sketch12.addConstraint(Sketcher.Constraint("Coincident", 3, 2, 4, 1))
sketch12.addConstraint(Sketcher.Constraint("Coincident", 4, 2, 5, 1))
sketch12.addConstraint(Sketcher.Constraint("Coincident", 5, 2, 0, 1))
sketch12.addConstraint(Sketcher.Constraint("Vertical", 0))
sketch12.addConstraint(Sketcher.Constraint("Horizontal", 1))
sketch12.addConstraint(Sketcher.Constraint("Vertical", 3))
sketch12.addConstraint(Sketcher.Constraint("Horizontal", 5))
sketch12.addConstraint(Sketcher.Constraint("Vertical", 1, 2, 4, 2))
sketch12.addConstraint(Sketcher.Constraint("Equal", 2, 4))
sketch12.addConstraint(Sketcher.Constraint("DistanceX", 1, 2, 1, 1, Q("5 mm")))
sketch12.addConstraint(Sketcher.Constraint("DistanceY", 0, 1, 0, 2, Q("30 mm")))
sketch12.addConstraint(Sketcher.Constraint("DistanceY", 3, 2, 3, 1, Q("22 mm")))
sketch12.addConstraint(Sketcher.Constraint("DistanceX", -1, 1, 0, 2, Q("25 mm")))
sketch12.addConstraint(Sketcher.Constraint("DistanceY", 0, 2, -1, 1, Q("45 mm")))
sketch12.addConstraint(Sketcher.Constraint("Distance", 2, Q("4.37584 mm")))
pad11 = doc.addObject("PartDesign::Pad", "Pad010")
body.addObject(pad11)
pad11.Profile = sketch12
pad11.Length = 2

# Sketch on XZ plane
sketch13 = doc.addObject("Sketcher::SketchObject", "Sketch012")
body.addObject(sketch13)
sketch13.AttachmentSupport = (doc.XZ_Plane, [""])
sketch13.MapMode = "FlatFace"
sketch13.AttachmentOffset = App.Placement(Vector(0, 0, -24.714659), App.Rotation())
sketch13.addGeometry(Part.LineSegment(Vector(0, 75, 0), Vector(-5, 75, 0)), False)
sketch13.addGeometry(Part.LineSegment(Vector(-5, 75, 0), Vector(-5, 85, 0)), False)
sketch13.addGeometry(Part.LineSegment(Vector(-5, 85, 0), Vector(0, 85, 0)), False)
sketch13.addGeometry(Part.LineSegment(Vector(0, 85, 0), Vector(0, 75, 0)), False)
sketch13.addConstraint(Sketcher.Constraint("Coincident", 0, 2, 1, 1))
sketch13.addConstraint(Sketcher.Constraint("Coincident", 1, 2, 2, 1))
sketch13.addConstraint(Sketcher.Constraint("Coincident", 2, 2, 3, 1))
sketch13.addConstraint(Sketcher.Constraint("Coincident", 3, 2, 0, 1))
sketch13.addConstraint(Sketcher.Constraint("Horizontal", 0))
sketch13.addConstraint(Sketcher.Constraint("Vertical", 1))
sketch13.addConstraint(Sketcher.Constraint("Horizontal", 2))
sketch13.addConstraint(Sketcher.Constraint("Vertical", 3))
sketch13.addConstraint(Sketcher.Constraint("PointOnObject", 2, 2, -2))
sketch13.addConstraint(Sketcher.Constraint("DistanceX", 0, 2, 0, 1, Q("5 mm")))
sketch13.addConstraint(Sketcher.Constraint("DistanceY", 1, 1, 1, 2, Q("10 mm")))
sketch13.addConstraint(Sketcher.Constraint("DistanceY", -1, 1, 0, 2, Q("75 mm")))
pad12 = doc.addObject("PartDesign::Pad", "Pad011")
body.addObject(pad12)
pad12.Profile = sketch13
pad12.Length = 0.285341
pad12.Reversed = True

doc.recompute()
